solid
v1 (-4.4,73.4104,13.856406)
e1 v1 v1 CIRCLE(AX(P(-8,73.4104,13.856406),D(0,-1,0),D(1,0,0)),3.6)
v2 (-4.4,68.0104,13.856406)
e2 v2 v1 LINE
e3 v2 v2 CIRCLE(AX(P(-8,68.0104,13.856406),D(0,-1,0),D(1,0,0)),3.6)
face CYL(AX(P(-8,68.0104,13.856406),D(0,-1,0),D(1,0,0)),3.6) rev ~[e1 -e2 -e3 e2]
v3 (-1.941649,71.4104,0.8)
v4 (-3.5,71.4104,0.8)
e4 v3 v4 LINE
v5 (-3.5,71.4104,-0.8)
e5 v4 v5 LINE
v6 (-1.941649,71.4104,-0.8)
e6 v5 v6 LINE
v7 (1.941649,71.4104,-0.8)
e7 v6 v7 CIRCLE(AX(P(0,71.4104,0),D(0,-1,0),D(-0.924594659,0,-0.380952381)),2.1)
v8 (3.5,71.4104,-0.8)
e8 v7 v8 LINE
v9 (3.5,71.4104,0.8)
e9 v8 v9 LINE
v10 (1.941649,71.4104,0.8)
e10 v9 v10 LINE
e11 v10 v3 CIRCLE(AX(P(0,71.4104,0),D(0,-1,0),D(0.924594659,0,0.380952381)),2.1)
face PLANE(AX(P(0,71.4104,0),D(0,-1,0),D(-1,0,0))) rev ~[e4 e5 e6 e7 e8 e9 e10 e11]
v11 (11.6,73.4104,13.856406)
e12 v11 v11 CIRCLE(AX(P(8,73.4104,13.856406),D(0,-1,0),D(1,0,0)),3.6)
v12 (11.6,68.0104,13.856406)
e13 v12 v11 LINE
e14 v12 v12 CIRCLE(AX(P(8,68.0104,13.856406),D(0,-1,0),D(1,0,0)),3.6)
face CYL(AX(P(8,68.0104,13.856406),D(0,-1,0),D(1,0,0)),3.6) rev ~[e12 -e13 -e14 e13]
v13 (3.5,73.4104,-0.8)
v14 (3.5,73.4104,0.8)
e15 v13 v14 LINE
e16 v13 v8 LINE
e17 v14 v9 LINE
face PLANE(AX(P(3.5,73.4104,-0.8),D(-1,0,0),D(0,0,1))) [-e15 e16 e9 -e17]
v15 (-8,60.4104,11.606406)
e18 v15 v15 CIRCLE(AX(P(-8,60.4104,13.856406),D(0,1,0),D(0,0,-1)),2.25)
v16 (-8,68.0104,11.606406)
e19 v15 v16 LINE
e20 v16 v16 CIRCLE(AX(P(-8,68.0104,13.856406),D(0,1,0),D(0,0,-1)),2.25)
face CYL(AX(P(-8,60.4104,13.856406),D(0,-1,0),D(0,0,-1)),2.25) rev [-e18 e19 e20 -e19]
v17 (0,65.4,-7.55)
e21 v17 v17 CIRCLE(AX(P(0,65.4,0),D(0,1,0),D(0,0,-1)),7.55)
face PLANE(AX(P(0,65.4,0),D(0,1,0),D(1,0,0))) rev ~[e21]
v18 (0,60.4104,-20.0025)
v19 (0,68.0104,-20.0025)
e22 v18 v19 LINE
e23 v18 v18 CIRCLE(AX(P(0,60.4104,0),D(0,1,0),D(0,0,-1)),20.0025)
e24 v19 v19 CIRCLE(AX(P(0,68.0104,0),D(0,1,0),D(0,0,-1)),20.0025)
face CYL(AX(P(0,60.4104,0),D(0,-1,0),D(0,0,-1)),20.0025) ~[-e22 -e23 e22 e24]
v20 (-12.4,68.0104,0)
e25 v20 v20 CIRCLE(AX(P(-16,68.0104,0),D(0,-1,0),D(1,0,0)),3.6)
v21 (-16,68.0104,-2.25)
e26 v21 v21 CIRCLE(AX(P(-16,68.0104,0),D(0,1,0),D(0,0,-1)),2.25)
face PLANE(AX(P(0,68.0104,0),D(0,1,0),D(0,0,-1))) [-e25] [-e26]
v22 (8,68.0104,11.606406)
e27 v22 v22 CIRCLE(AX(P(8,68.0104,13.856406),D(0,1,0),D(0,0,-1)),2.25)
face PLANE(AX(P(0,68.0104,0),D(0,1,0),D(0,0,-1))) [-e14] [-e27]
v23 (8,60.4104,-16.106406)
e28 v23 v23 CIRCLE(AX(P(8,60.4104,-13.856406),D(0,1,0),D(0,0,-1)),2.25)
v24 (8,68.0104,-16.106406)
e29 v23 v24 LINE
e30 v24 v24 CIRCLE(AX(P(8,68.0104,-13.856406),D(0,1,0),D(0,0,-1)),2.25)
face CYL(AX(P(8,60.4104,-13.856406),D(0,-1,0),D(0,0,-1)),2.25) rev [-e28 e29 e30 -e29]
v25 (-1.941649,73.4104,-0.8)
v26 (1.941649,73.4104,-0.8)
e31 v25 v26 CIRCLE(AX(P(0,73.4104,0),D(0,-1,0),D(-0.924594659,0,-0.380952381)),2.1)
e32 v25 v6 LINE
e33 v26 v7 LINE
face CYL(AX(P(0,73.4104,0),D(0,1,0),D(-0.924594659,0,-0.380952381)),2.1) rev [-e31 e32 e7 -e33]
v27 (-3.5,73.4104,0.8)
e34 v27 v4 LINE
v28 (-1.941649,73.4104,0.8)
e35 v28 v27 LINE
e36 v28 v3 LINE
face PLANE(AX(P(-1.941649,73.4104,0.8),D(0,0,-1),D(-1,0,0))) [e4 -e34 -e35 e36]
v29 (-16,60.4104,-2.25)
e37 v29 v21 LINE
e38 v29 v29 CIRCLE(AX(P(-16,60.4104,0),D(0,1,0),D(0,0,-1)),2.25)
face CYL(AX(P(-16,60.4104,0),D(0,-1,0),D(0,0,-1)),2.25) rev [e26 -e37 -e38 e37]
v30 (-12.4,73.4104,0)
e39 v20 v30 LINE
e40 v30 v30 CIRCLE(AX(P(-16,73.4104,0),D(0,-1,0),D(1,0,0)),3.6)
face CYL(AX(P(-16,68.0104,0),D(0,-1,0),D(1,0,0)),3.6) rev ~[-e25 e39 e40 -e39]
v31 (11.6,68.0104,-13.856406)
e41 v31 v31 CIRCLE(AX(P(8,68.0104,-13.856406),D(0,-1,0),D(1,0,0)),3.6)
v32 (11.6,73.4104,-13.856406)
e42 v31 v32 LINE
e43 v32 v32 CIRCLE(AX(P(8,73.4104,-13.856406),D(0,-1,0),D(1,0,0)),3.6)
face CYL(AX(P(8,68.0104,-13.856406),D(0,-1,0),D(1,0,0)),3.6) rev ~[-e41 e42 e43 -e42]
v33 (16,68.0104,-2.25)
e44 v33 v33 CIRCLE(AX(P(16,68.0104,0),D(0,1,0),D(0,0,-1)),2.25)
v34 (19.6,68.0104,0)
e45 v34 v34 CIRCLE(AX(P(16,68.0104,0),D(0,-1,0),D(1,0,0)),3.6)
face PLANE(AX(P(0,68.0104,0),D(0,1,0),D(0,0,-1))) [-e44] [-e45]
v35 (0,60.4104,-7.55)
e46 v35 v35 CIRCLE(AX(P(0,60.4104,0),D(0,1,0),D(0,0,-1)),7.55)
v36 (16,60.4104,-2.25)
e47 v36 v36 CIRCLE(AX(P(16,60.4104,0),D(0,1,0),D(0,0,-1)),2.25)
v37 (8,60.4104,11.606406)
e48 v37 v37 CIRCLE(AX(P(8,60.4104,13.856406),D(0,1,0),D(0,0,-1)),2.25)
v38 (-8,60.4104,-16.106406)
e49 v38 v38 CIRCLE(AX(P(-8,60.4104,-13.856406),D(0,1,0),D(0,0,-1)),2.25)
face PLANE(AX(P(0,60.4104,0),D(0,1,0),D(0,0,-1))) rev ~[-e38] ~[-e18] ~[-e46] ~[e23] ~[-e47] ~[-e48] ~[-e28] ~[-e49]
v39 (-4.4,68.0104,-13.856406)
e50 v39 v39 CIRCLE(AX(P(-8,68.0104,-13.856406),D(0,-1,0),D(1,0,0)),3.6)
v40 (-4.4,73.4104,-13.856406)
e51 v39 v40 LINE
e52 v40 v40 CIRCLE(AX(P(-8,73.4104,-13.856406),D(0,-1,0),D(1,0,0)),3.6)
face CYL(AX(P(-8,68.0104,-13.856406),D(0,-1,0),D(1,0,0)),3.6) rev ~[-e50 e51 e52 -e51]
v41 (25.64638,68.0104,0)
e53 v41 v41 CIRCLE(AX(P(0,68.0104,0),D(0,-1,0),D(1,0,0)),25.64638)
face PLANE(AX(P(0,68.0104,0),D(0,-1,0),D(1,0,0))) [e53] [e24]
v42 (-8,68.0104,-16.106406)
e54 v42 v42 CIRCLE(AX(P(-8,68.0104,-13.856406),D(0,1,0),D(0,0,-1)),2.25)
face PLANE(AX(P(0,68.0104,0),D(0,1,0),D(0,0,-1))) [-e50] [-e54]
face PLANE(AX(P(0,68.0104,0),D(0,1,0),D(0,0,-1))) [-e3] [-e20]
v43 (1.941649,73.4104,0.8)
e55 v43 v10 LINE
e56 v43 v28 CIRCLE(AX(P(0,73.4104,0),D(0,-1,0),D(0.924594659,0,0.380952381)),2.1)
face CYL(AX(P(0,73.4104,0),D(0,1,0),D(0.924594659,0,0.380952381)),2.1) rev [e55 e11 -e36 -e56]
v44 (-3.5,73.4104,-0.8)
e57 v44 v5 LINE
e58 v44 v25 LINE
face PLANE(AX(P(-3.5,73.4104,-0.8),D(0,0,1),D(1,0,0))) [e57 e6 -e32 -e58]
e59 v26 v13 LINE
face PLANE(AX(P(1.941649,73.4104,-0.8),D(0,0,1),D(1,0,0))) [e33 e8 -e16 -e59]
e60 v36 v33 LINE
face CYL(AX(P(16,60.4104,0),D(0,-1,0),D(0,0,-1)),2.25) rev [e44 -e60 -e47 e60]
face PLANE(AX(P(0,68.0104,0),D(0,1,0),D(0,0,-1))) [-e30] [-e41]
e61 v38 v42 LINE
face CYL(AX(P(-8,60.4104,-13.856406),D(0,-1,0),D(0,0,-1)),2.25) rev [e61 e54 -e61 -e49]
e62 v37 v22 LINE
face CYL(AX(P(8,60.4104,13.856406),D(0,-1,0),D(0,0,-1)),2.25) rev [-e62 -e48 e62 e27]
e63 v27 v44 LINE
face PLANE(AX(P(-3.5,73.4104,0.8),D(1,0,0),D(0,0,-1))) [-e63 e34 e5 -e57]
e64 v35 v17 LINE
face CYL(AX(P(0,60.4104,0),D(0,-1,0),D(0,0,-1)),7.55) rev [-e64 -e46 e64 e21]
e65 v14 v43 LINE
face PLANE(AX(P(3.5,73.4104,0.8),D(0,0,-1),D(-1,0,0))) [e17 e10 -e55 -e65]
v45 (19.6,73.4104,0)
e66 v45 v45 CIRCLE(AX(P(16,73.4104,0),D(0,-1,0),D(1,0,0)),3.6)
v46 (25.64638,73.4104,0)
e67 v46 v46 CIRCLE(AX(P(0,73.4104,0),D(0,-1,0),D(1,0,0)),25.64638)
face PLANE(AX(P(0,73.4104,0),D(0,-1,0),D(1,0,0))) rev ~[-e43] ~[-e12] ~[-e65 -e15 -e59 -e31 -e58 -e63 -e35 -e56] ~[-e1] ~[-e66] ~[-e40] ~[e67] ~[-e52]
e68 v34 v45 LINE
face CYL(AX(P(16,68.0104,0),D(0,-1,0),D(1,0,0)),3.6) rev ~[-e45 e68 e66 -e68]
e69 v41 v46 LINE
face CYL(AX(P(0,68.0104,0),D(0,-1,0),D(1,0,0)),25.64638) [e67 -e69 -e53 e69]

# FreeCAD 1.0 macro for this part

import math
import FreeCAD as App
import Part
import Sketcher
from FreeCAD import Vector

doc = App.newDocument("Part")
body = doc.addObject("PartDesign::Body", "Body")

sketch1 = body.newObject("Sketcher::SketchObject", "Sketch")
sketch1.AttachmentSupport = (doc.getObject("XZ_Plane"), [""])
sketch1.MapMode = "FlatFace"
sketch1.AttachmentOffset = App.Placement(Vector(0, 0, -60.4104), App.Rotation())
sketch1.addGeometry(Part.Circle(Vector(0, 0, 0), Vector(0, 0, 1), 20.0025), False)
sketch1.addGeometry(Part.Circle(Vector(8, 13.856406, 0), Vector(0, 0, 1), 2.25), False)
sketch1.addGeometry(Part.Circle(Vector(16, 0, 0), Vector(0, 0, 1), 2.25), False)
sketch1.addGeometry(Part.Circle(Vector(8, -13.856406, 0), Vector(0, 0, 1), 2.25), False)
sketch1.addGeometry(Part.Circle(Vector(-8, 13.856406, 0), Vector(0, 0, 1), 2.25), False)
sketch1.addGeometry(Part.Circle(Vector(0, 0, 0), Vector(0, 0, 1), 7.55), False)
sketch1.addGeometry(Part.Circle(Vector(-16, 0, 0), Vector(0, 0, 1), 2.25), False)
sketch1.addGeometry(Part.Circle(Vector(-8, -13.856406, 0), Vector(0, 0, 1), 2.25), False)
sketch1.addConstraint(Sketcher.Constraint("Coincident", 0, 3, -1, 1))
sketch1.addConstraint(Sketcher.Constraint("Coincident", 5, 3, -1, 1))
sketch1.addConstraint(Sketcher.Constraint("Equal", 1, 2))
sketch1.addConstraint(Sketcher.Constraint("Equal", 2, 3))
sketch1.addConstraint(Sketcher.Constraint("Equal", 3, 4))
sketch1.addConstraint(Sketcher.Constraint("Equal", 4, 6))
sketch1.addConstraint(Sketcher.Constraint("Equal", 6, 7))
sketch1.addConstraint(Sketcher.Constraint("Symmetric", 3, 3, 4, 3, -1, 1))
sketch1.addConstraint(Sketcher.Constraint("Symmetric", 2, 3, 6, 3, -1, 1))
sketch1.addConstraint(Sketcher.Constraint("Symmetric", 1, 3, 7, 3, -1, 1))
sketch1.addConstraint(Sketcher.Constraint("Symmetric", 1, 3, 4, 3, -2))
sketch1.addConstraint(Sketcher.Constraint("PointOnObject", 2, 3, -1))
sketch1.addConstraint(Sketcher.Constraint("Diameter", 1, 4.5))
sketch1.addConstraint(Sketcher.Constraint("Diameter", 5, 15.1))
sketch1.addConstraint(Sketcher.Constraint("Diameter", 0, 40.005))
sketch1.addConstraint(Sketcher.Constraint("DistanceX", -1, 1, 1, 3, 8.0))
sketch1.addConstraint(Sketcher.Constraint("DistanceX", -1, 1, 2, 3, 16.0))
sketch1.addConstraint(Sketcher.Constraint("DistanceY", -1, 1, 1, 3, 13.856406))
pad1 = body.newObject("PartDesign::Pad", "Pad")
pad1.Profile = sketch1
pad1.Length = 7.6
pad1.Reversed = True

sketch2 = body.newObject("Sketcher::SketchObject", "Sketch001")
sketch2.AttachmentSupport = (doc.getObject("XZ_Plane"), [""])
sketch2.MapMode = "FlatFace"
sketch2.AttachmentOffset = App.Placement(Vector(0, 0, -65.4), App.Rotation())
sketch2.addGeometry(Part.Circle(Vector(0, 0, 0), Vector(0, 0, 1), 7.55), False)
sketch2.addGeometry(Part.Circle(Vector(0, 0, 0), Vector(0, 0, 1), 6.952615), False)
sketch2.addConstraint(Sketcher.Constraint("Coincident", 0, 3, -1, 1))
sketch2.addConstraint(Sketcher.Constraint("Coincident", 1, 3, -1, 1))
sketch2.addConstraint(Sketcher.Constraint("Diameter", 0, 15.1))
sketch2.addConstraint(Sketcher.Constraint("Diameter", 1, 13.90523))
pad2 = body.newObject("PartDesign::Pad", "Pad001")
pad2.Profile = sketch2
pad2.Length = 2.6104
pad2.Reversed = True

sketch3 = body.newObject("Sketcher::SketchObject", "Sketch002")
sketch3.AttachmentSupport = (doc.getObject("XZ_Plane"), [""])
sketch3.MapMode = "FlatFace"
sketch3.AttachmentOffset = App.Placement(Vector(0, 0, -68.0104), App.Rotation())
sketch3.addGeometry(Part.Circle(Vector(0, 0, 0), Vector(0, 0, 1), 25.64638), False)
sketch3.addGeometry(Part.Circle(Vector(-8, -13.856406, 0), Vector(0, 0, 1), 3.6), False)
sketch3.addGeometry(Part.Circle(Vector(-16, 0, 0), Vector(0, 0, 1), 3.6), False)
sketch3.addGeometry(Part.Circle(Vector(8, -13.856406, 0), Vector(0, 0, 1), 3.6), False)
sketch3.addGeometry(Part.Circle(Vector(-8, 13.856406, 0), Vector(0, 0, 1), 3.6), False)
sketch3.addGeometry(Part.Circle(Vector(16, 0, 0), Vector(0, 0, 1), 3.6), False)
sketch3.addGeometry(Part.Circle(Vector(8, 13.856406, 0), Vector(0, 0, 1), 3.6), False)
sketch3.addConstraint(Sketcher.Constraint("Coincident", 0, 3, -1, 1))
sketch3.addConstraint(Sketcher.Constraint("Equal", 1, 2))
sketch3.addConstraint(Sketcher.Constraint("Equal", 2, 3))
sketch3.addConstraint(Sketcher.Constraint("Equal", 3, 4))
sketch3.addConstraint(Sketcher.Constraint("Equal", 4, 5))
sketch3.addConstraint(Sketcher.Constraint("Equal", 5, 6))
sketch3.addConstraint(Sketcher.Constraint("Symmetric", 3, 3, 4, 3, -1, 1))
sketch3.addConstraint(Sketcher.Constraint("Symmetric", 2, 3, 5, 3, -1, 1))
sketch3.addConstraint(Sketcher.Constraint("Symmetric", 1, 3, 6, 3, -1, 1))
sketch3.addConstraint(Sketcher.Constraint("Symmetric", 1, 3, 3, 3, -2))
sketch3.addConstraint(Sketcher.Constraint("PointOnObject", 2, 3, -1))
sketch3.addConstraint(Sketcher.Constraint("Diameter", 1, 7.2))
sketch3.addConstraint(Sketcher.Constraint("DistanceX", 1, 3, -1, 1, 8.0))
sketch3.addConstraint(Sketcher.Constraint("DistanceX", 2, 3, -1, 1, 16.0))
sketch3.addConstraint(Sketcher.Constraint("Diameter", 0, 51.29276))
sketch3.addConstraint(Sketcher.Constraint("DistanceY", 1, 3, -1, 1, 13.856406))
pad3 = body.newObject("PartDesign::Pad", "Pad002")
pad3.Profile = sketch3
pad3.Length = 5.4
pad3.Reversed = True

sketch4 = body.newObject("Sketcher::SketchObject", "Sketch003")
sketch4.AttachmentSupport = (doc.getObject("XZ_Plane"), [""])
sketch4.MapMode = "FlatFace"
sketch4.AttachmentOffset = App.Placement(Vector(0, 0, -65.4104), App.Rotation())
sketch4.addGeometry(Part.Circle(Vector(0, 0, 0), Vector(0, 0, 1), 6.952615), False)
sketch4.addConstraint(Sketcher.Constraint("Coincident", 0, 3, -1, 1))
sketch4.addConstraint(Sketcher.Constraint("Diameter", 0, 13.90523))
pocket1 = body.newObject("PartDesign::Pocket", "Pocket")
pocket1.Profile = sketch4
pocket1.Length = 8

sketch5 = body.newObject("Sketcher::SketchObject", "Sketch004")
sketch5.AttachmentSupport = (doc.getObject("XZ_Plane"), [""])
sketch5.MapMode = "FlatFace"
sketch5.AttachmentOffset = App.Placement(Vector(0, 0, -65.4), App.Rotation())
sketch5.addGeometry(Part.Circle(Vector(0, 0, 0), Vector(0, 0, 1), 6.952615), False)
sketch5.addConstraint(Sketcher.Constraint("Coincident", 0, 3, -1, 1))
sketch5.addConstraint(Sketcher.Constraint("Diameter", 0, 13.90523))
pad4 = body.newObject("PartDesign::Pad", "Pad003")
pad4.Profile = sketch5
pad4.Length = 8.0104
pad4.Reversed = True

sketch6 = body.newObject("Sketcher::SketchObject", "Sketch005")
sketch6.AttachmentSupport = (doc.getObject("XZ_Plane"), [""])
sketch6.MapMode = "FlatFace"
sketch6.AttachmentOffset = App.Placement(Vector(0, 0, -73.4104), App.Rotation())
sketch6.addGeometry(Part.LineSegment(Vector(3.5, -0.8, 0), Vector(1.941649, -0.8, 0)), False)
sketch6.addGeometry(Part.ArcOfCircle(Part.Circle(Vector(0, 0, 0), Vector(0, 0, 1), 2.1), math.radians(-157.607312), math.radians(-22.392688)), False)
sketch6.addGeometry(Part.LineSegment(Vector(-1.941649, -0.8, 0), Vector(-3.5, -0.8, 0)), False)
sketch6.addGeometry(Part.LineSegment(Vector(-3.5, -0.8, 0), Vector(-3.5, 0.8, 0)), False)
sketch6.addGeometry(Part.LineSegment(Vector(-3.5, 0.8, 0), Vector(-1.941649, 0.8, 0)), False)
sketch6.addGeometry(Part.ArcOfCircle(Part.Circle(Vector(0, 0, 0), Vector(0, 0, 1), 2.1), math.radians(22.392688), math.radians(157.607312)), False)
sketch6.addGeometry(Part.LineSegment(Vector(1.941649, 0.8, 0), Vector(3.5, 0.8, 0)), False)
sketch6.addGeometry(Part.LineSegment(Vector(3.5, 0.8, 0), Vector(3.5, -0.8, 0)), False)
sketch6.addConstraint(Sketcher.Constraint("Coincident", 0, 2, 1, 2))
sketch6.addConstraint(Sketcher.Constraint("Coincident", 1, 1, 2, 1))
sketch6.addConstraint(Sketcher.Constraint("Coincident", 2, 2, 3, 1))
sketch6.addConstraint(Sketcher.Constraint("Coincident", 3, 2, 4, 1))
sketch6.addConstraint(Sketcher.Constraint("Coincident", 4, 2, 5, 2))
sketch6.addConstraint(Sketcher.Constraint("Coincident", 5, 1, 6, 1))
sketch6.addConstraint(Sketcher.Constraint("Coincident", 6, 2, 7, 1))
sketch6.addConstraint(Sketcher.Constraint("Coincident", 7, 2, 0, 1))
sketch6.addConstraint(Sketcher.Constraint("Horizontal", 0))
sketch6.addConstraint(Sketcher.Constraint("Horizontal", 2))
sketch6.addConstraint(Sketcher.Constraint("Vertical", 3))
sketch6.addConstraint(Sketcher.Constraint("Horizontal", 4))
sketch6.addConstraint(Sketcher.Constraint("Horizontal", 6))
sketch6.addConstraint(Sketcher.Constraint("Vertical", 7))
sketch6.addConstraint(Sketcher.Constraint("Coincident", 1, 3, -1, 1))
sketch6.addConstraint(Sketcher.Constraint("Coincident", 5, 3, -1, 1))
sketch6.addConstraint(Sketcher.Constraint("Equal", 1, 5))
sketch6.addConstraint(Sketcher.Constraint("Symmetric", 2, 2, 6, 2, -1, 1))
sketch6.addConstraint(Sketcher.Constraint("Horizontal", 0, 2, 1, 1))
sketch6.addConstraint(Sketcher.Constraint("Horizontal", 4, 2, 5, 1))
sketch6.addConstraint(Sketcher.Constraint("Radius", 1, 2.1))
sketch6.addConstraint(Sketcher.Constraint("DistanceY", 3, 1, 3, 2, 1.6))
sketch6.addConstraint(Sketcher.Constraint("DistanceX", 2, 2, -1, 1, 3.5))
pocket2 = body.newObject("PartDesign::Pocket", "Pocket001")
pocket2.Profile = sketch6
pocket2.Length = 2
pocket2.Reversed = True

doc.recompute()
